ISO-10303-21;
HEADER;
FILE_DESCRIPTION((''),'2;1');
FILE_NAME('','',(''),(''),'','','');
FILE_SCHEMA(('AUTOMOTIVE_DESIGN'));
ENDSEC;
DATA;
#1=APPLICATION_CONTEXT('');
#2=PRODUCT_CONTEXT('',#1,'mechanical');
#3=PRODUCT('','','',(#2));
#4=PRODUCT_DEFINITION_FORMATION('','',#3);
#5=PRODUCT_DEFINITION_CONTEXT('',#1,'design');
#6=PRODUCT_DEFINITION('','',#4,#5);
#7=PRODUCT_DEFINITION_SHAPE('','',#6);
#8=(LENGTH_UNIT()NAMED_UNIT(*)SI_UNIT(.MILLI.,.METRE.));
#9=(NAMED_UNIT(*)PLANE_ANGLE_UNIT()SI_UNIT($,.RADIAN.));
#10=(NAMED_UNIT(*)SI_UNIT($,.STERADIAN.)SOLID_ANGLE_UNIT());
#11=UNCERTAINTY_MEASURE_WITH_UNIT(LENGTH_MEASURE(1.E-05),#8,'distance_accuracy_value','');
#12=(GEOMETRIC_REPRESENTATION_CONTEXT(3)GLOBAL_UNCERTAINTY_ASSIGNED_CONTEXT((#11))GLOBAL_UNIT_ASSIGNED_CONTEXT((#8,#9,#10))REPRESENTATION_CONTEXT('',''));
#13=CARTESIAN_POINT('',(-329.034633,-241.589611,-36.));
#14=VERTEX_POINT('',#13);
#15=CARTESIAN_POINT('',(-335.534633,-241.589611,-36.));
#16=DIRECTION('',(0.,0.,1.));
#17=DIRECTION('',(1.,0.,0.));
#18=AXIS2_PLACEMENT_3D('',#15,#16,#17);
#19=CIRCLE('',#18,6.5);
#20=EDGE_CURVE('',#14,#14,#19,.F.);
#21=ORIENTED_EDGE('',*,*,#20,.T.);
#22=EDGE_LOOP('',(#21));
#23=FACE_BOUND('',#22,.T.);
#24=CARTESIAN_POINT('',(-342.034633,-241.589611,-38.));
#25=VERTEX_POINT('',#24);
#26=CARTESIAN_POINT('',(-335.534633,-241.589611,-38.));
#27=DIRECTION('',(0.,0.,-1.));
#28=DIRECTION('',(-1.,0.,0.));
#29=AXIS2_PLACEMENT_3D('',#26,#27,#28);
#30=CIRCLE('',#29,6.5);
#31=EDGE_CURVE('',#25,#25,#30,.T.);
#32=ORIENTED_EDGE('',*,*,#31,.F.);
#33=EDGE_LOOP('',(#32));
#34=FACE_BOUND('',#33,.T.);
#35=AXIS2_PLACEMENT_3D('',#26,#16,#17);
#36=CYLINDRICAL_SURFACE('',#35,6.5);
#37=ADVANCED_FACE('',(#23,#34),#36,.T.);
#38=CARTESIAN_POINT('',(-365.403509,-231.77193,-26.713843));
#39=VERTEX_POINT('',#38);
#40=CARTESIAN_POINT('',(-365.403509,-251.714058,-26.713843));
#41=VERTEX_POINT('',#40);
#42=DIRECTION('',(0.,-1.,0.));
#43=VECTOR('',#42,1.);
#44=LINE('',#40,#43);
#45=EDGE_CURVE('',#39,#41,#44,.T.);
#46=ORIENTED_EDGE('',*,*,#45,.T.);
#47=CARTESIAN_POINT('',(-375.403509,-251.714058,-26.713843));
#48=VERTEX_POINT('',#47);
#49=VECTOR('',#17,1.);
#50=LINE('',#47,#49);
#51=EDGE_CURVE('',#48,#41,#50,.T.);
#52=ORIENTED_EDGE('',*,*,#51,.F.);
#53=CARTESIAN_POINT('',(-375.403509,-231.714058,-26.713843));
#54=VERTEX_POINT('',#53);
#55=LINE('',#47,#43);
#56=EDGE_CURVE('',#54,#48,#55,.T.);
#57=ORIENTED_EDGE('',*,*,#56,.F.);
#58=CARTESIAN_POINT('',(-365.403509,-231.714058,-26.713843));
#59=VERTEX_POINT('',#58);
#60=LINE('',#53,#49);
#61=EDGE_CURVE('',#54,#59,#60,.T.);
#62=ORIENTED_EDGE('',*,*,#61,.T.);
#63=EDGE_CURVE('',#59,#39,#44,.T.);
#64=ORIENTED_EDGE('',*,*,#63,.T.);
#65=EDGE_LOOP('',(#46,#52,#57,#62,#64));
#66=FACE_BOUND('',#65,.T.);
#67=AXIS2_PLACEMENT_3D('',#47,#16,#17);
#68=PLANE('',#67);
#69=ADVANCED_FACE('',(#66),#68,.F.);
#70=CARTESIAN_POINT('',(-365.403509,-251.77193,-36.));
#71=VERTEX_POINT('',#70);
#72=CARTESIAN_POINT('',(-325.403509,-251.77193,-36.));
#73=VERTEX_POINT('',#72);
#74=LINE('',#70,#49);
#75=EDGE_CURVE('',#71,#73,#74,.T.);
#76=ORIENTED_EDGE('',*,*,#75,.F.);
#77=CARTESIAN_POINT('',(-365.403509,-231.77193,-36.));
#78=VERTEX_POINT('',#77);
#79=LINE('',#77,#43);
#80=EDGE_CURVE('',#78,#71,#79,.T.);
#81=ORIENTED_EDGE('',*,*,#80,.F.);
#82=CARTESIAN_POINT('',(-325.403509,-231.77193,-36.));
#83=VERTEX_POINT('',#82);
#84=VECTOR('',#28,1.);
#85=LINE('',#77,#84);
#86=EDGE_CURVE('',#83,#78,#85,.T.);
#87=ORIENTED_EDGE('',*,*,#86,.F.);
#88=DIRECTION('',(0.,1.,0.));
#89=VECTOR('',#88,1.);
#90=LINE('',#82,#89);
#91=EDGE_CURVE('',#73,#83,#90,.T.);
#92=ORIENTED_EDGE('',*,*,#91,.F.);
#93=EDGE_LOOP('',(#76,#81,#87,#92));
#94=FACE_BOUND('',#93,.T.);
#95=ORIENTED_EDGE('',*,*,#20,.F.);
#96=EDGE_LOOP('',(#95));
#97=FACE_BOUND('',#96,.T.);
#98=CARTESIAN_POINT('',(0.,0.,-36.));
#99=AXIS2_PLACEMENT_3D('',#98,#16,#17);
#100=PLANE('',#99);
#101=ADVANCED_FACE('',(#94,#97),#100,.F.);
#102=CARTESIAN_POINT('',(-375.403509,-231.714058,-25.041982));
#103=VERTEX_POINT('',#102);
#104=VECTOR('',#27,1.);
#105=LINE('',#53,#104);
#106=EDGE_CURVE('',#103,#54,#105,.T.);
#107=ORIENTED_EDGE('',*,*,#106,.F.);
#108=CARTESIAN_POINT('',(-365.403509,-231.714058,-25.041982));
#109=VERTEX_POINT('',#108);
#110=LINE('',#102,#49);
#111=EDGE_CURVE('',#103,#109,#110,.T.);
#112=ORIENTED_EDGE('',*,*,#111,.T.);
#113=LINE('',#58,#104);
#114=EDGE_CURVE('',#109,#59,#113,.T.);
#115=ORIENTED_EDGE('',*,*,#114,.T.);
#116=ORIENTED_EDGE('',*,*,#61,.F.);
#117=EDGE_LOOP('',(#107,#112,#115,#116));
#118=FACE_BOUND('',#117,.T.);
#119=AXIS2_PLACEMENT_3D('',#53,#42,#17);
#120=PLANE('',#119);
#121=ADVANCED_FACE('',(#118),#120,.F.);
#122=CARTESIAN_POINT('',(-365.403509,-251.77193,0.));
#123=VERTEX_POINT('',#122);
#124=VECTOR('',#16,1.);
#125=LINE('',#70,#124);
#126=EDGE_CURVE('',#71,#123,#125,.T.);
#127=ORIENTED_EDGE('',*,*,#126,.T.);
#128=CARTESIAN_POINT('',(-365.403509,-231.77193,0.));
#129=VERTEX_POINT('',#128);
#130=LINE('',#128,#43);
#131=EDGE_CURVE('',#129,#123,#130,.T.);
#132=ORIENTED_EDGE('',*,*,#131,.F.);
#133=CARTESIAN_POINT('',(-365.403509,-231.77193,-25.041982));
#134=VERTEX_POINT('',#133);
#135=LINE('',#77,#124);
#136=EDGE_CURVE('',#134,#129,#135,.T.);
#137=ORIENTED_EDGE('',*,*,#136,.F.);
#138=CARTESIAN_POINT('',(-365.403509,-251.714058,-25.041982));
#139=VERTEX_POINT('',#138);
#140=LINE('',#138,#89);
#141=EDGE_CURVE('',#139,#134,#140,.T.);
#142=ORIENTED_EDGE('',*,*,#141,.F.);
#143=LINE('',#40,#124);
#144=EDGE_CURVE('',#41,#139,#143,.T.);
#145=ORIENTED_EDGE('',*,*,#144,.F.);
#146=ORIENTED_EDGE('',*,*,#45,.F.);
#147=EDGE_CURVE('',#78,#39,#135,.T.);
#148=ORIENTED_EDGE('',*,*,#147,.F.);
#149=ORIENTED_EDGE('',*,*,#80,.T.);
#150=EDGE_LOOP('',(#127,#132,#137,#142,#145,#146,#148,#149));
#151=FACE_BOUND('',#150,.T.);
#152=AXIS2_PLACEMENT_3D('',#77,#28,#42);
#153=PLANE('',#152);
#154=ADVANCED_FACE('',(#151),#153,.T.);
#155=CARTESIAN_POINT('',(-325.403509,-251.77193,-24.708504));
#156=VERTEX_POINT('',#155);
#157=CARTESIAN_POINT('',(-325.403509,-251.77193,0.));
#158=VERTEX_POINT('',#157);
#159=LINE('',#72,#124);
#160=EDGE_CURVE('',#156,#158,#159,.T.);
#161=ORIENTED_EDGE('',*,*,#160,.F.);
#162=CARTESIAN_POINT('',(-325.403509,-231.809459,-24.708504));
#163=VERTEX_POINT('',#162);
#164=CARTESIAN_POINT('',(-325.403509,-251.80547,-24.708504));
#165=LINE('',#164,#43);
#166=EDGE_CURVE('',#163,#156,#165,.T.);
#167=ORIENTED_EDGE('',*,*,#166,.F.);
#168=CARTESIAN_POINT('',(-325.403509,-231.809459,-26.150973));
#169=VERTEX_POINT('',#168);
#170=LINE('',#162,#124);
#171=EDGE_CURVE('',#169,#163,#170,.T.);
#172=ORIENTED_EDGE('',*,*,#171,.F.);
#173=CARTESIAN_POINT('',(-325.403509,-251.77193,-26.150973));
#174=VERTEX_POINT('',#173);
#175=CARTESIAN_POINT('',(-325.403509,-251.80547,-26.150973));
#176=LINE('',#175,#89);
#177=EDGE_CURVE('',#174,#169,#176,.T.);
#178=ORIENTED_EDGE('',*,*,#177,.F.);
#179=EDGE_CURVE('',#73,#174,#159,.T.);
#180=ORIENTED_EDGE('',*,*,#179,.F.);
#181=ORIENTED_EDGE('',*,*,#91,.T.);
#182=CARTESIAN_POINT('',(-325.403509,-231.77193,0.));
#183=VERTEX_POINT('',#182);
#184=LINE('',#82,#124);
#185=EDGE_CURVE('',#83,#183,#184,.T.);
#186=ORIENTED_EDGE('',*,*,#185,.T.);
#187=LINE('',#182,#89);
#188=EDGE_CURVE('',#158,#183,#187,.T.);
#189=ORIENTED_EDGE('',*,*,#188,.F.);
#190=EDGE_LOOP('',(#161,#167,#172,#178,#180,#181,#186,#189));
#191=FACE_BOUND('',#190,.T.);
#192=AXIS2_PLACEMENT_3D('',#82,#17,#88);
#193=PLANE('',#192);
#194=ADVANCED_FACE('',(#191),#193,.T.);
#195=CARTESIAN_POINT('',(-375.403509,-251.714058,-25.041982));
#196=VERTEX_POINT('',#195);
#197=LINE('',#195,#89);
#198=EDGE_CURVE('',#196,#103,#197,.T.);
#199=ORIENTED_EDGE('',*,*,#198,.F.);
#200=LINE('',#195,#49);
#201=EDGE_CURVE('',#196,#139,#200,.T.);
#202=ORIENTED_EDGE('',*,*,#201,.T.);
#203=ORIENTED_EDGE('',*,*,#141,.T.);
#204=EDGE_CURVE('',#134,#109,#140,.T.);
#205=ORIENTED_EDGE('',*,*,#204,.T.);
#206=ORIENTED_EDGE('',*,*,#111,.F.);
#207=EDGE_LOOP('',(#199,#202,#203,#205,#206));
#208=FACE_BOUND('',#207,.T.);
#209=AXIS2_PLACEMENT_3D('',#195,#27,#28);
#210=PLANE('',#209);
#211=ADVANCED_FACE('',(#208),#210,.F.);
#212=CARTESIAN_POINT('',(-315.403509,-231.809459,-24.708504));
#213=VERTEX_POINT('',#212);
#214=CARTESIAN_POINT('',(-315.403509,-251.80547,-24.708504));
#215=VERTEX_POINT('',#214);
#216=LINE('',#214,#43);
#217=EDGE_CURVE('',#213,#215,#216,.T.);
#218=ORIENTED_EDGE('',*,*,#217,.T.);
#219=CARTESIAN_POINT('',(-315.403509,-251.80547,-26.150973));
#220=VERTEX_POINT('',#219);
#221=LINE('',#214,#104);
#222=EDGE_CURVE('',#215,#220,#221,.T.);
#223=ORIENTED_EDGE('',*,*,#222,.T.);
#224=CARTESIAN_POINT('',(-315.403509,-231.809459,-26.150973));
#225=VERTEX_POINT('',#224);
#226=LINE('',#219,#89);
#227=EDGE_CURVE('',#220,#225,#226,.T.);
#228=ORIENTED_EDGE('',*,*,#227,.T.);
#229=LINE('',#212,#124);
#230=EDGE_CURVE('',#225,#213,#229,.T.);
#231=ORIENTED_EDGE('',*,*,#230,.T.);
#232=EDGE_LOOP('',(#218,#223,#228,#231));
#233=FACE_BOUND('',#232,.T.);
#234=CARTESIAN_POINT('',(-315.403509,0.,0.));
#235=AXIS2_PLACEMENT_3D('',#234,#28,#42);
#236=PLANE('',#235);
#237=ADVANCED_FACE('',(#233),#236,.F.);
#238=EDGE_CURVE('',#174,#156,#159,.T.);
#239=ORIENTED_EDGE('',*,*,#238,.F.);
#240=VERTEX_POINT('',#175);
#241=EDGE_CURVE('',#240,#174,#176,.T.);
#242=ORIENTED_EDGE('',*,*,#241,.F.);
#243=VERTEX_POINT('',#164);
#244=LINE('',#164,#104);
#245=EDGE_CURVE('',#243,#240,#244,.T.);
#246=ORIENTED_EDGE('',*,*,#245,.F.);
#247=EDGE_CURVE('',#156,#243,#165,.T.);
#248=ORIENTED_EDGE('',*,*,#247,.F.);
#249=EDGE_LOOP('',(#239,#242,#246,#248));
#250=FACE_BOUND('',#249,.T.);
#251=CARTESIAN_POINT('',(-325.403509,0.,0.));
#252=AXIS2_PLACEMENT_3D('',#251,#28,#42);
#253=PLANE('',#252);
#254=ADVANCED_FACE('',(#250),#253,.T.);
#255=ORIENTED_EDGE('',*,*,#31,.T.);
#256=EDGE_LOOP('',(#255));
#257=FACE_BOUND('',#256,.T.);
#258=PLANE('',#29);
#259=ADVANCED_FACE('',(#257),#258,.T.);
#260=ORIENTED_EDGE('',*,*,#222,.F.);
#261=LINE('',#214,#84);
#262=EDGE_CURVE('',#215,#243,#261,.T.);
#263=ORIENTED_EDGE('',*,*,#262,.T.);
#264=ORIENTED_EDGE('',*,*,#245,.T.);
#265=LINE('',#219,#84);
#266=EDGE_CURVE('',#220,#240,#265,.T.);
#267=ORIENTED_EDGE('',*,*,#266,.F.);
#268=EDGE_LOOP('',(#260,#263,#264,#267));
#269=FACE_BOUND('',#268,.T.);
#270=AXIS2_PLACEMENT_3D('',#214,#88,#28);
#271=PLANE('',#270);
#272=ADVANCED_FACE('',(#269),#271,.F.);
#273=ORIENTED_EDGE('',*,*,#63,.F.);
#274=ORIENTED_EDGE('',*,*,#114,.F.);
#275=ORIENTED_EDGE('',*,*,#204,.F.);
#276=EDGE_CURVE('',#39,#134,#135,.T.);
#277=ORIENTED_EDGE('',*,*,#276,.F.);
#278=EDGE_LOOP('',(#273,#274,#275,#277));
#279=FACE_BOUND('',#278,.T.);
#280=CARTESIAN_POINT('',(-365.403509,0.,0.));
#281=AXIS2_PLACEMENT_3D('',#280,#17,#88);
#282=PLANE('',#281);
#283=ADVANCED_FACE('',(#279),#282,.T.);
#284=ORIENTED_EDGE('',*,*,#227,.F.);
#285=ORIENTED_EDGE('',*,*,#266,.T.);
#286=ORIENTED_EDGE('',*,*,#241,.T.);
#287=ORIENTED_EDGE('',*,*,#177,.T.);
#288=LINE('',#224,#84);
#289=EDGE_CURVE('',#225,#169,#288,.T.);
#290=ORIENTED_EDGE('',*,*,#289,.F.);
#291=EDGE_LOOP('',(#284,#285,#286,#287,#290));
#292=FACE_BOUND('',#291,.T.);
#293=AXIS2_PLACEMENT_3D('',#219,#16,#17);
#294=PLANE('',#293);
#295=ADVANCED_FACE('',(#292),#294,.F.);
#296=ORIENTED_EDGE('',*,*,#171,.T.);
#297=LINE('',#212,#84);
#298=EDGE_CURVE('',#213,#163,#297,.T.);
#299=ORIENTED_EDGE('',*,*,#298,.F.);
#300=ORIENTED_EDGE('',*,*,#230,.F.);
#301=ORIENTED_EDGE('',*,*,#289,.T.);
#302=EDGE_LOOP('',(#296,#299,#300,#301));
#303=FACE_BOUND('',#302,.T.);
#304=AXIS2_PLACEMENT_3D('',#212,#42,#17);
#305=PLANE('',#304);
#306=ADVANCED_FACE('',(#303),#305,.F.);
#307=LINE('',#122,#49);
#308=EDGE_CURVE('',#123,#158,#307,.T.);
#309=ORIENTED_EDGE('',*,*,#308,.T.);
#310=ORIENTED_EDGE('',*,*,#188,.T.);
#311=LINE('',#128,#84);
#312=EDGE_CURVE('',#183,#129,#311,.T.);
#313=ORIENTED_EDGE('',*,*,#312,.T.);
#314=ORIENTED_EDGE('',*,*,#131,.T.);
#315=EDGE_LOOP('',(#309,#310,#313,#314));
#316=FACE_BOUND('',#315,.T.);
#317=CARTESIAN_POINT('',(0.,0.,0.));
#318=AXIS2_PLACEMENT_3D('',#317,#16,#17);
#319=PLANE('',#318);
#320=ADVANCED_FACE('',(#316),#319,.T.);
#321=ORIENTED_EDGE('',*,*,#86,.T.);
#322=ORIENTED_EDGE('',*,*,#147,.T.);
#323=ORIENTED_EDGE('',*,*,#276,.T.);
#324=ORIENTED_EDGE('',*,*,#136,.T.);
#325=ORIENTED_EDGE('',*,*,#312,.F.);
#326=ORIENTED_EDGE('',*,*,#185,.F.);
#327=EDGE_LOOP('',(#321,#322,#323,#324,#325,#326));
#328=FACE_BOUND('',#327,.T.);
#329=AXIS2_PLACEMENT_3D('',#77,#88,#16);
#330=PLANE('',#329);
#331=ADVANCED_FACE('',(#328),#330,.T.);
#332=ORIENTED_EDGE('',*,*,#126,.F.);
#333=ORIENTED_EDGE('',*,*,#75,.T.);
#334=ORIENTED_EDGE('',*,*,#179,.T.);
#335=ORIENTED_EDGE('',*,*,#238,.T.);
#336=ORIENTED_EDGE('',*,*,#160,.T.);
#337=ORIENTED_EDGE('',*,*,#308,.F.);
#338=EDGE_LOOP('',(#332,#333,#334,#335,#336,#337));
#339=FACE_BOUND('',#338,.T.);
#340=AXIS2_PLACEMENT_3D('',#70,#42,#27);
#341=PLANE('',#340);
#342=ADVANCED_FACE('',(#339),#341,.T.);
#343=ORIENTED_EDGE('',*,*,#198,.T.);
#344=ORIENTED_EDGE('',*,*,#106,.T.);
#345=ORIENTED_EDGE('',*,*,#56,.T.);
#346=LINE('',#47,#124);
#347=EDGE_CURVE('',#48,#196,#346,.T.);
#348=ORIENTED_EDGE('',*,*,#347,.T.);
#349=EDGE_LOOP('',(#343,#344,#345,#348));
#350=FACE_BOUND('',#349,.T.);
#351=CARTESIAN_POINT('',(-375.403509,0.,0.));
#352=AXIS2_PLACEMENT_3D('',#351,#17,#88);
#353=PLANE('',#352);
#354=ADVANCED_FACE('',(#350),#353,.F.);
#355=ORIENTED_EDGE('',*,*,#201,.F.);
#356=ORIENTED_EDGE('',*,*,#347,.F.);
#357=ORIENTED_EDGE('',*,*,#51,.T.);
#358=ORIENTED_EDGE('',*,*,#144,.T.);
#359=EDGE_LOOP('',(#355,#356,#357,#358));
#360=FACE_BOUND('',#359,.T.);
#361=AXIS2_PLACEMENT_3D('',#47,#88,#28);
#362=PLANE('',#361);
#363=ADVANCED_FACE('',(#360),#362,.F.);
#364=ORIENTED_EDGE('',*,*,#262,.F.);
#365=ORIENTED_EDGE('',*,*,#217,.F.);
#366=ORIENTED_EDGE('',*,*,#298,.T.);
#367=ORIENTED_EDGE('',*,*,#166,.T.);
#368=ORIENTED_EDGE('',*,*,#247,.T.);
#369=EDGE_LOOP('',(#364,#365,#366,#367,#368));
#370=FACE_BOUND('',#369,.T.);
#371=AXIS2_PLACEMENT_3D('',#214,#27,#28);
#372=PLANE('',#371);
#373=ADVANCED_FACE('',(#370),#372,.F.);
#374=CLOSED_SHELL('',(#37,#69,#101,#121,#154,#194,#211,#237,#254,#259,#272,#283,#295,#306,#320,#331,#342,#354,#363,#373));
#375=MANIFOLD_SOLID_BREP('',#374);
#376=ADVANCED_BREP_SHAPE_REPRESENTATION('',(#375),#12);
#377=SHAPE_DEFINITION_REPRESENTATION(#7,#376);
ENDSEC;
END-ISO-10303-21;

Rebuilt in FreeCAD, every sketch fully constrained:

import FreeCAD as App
import Part
import Sketcher


def add_polygon(sketch, points):
    """Adds a closed chain of lines whose ends are joined by coincident constraints."""
    first, n = sketch.GeometryCount, len(points)
    for a, b in zip(points, points[1:] + points[:1]):
        sketch.addGeometry(Part.LineSegment(App.Vector(*a, 0), App.Vector(*b, 0)), False)
    for i in range(n):
        sketch.addConstraint(Sketcher.Constraint("Coincident", first + i, 2, first + (i + 1) % n, 1))

doc = App.newDocument("Part")
body = doc.addObject("PartDesign::Body", "Body")

# Sketch on XY plane
sketch1 = body.newObject("Sketcher::SketchObject", "Sketch")
sketch1.AttachmentSupport = (doc.getObject("XY_Plane"), [""])
sketch1.MapMode = "FlatFace"
add_polygon(sketch1, [(-365, -232), (-365, -252), (-325, -252), (-325, -232)])  # lines 0-3
sketch1.addConstraint([
    Sketcher.Constraint("Vertical", 0),
    Sketcher.Constraint("Horizontal", 1),
    Sketcher.Constraint("Vertical", 2),
    Sketcher.Constraint("Horizontal", 3),
    Sketcher.Constraint("DistanceX", 1, 1, 1, 2, 40.0),
    Sketcher.Constraint("DistanceY", 0, 2, 0, 1, 20.0),
    Sketcher.Constraint("DistanceX", 0, 2, -1, 1, 365.403509),
    Sketcher.Constraint("DistanceY", 0, 2, -1, 1, 251.77193),
])
pad1 = body.newObject("PartDesign::Pad", "Pad")
pad1.Profile = sketch1
pad1.Length = 36
pad1.Reversed = True

# Sketch on YZ plane
sketch2 = body.newObject("Sketcher::SketchObject", "Sketch001")
sketch2.AttachmentSupport = (doc.getObject("YZ_Plane"), [""])
sketch2.MapMode = "FlatFace"
sketch2.AttachmentOffset = App.Placement(App.Vector(0, 0, -365.403509), App.Rotation())
add_polygon(sketch2, [(-231.7, -26.7), (-251.7, -26.7), (-251.7, -25), (-231.7, -25)])  # lines 0-3
sketch2.addConstraint([
    Sketcher.Constraint("Horizontal", 0),
    Sketcher.Constraint("Vertical", 1),
    Sketcher.Constraint("Horizontal", 2),
    Sketcher.Constraint("Vertical", 3),
    Sketcher.Constraint("DistanceX", 0, 2, 0, 1, 20.0),
    Sketcher.Constraint("DistanceY", 1, 1, 1, 2, 1.67186),
    Sketcher.Constraint("DistanceX", 0, 2, -1, 1, 251.714058),
    Sketcher.Constraint("DistanceY", 0, 2, -1, 1, 26.713843),
])
pad2 = body.newObject("PartDesign::Pad", "Pad001")
pad2.Profile = sketch2
pad2.Length = 10
pad2.Reversed = True

# Sketch on YZ plane
sketch3 = body.newObject("Sketcher::SketchObject", "Sketch002")
sketch3.AttachmentSupport = (doc.getObject("YZ_Plane"), [""])
sketch3.MapMode = "FlatFace"
sketch3.AttachmentOffset = App.Placement(App.Vector(0, 0, -325.403509), App.Rotation())
add_polygon(sketch3, [(-231.8, -24.7), (-251.8, -24.7), (-251.8, -26.2), (-231.8, -26.2)])  # lines 0-3
sketch3.addConstraint([
    Sketcher.Constraint("Horizontal", 0),
    Sketcher.Constraint("Vertical", 1),
    Sketcher.Constraint("Horizontal", 2),
    Sketcher.Constraint("Vertical", 3),
    Sketcher.Constraint("DistanceX", 0, 2, 0, 1, 19.996011),
    Sketcher.Constraint("DistanceY", 1, 2, 1, 1, 1.442469),
    Sketcher.Constraint("DistanceX", 0, 2, -1, 1, 251.80547),
    Sketcher.Constraint("DistanceY", 0, 2, -1, 1, 24.708504),
])
pad3 = body.newObject("PartDesign::Pad", "Pad002")
pad3.Profile = sketch3
pad3.Length = 10

# Sketch on XY plane
sketch4 = body.newObject("Sketcher::SketchObject", "Sketch003")
sketch4.AttachmentSupport = (doc.getObject("XY_Plane"), [""])
sketch4.MapMode = "FlatFace"
sketch4.AttachmentOffset = App.Placement(App.Vector(0, 0, -36), App.Rotation())
sketch4.addGeometry(Part.Circle(App.Vector(-336, -242, 0), App.Vector(0, 0, 1), 6), False)
sketch4.addConstraint([
    Sketcher.Constraint("Diameter", 0, 13.0),
    Sketcher.Constraint("DistanceY", 0, 3, -1, 1, 241.589611),
    Sketcher.Constraint("DistanceX", 0, 3, -1, 1, 335.534633),
])
pad4 = body.newObject("PartDesign::Pad", "Pad003")
pad4.Profile = sketch4
pad4.Length = 2
pad4.Reversed = True

doc.recompute()
